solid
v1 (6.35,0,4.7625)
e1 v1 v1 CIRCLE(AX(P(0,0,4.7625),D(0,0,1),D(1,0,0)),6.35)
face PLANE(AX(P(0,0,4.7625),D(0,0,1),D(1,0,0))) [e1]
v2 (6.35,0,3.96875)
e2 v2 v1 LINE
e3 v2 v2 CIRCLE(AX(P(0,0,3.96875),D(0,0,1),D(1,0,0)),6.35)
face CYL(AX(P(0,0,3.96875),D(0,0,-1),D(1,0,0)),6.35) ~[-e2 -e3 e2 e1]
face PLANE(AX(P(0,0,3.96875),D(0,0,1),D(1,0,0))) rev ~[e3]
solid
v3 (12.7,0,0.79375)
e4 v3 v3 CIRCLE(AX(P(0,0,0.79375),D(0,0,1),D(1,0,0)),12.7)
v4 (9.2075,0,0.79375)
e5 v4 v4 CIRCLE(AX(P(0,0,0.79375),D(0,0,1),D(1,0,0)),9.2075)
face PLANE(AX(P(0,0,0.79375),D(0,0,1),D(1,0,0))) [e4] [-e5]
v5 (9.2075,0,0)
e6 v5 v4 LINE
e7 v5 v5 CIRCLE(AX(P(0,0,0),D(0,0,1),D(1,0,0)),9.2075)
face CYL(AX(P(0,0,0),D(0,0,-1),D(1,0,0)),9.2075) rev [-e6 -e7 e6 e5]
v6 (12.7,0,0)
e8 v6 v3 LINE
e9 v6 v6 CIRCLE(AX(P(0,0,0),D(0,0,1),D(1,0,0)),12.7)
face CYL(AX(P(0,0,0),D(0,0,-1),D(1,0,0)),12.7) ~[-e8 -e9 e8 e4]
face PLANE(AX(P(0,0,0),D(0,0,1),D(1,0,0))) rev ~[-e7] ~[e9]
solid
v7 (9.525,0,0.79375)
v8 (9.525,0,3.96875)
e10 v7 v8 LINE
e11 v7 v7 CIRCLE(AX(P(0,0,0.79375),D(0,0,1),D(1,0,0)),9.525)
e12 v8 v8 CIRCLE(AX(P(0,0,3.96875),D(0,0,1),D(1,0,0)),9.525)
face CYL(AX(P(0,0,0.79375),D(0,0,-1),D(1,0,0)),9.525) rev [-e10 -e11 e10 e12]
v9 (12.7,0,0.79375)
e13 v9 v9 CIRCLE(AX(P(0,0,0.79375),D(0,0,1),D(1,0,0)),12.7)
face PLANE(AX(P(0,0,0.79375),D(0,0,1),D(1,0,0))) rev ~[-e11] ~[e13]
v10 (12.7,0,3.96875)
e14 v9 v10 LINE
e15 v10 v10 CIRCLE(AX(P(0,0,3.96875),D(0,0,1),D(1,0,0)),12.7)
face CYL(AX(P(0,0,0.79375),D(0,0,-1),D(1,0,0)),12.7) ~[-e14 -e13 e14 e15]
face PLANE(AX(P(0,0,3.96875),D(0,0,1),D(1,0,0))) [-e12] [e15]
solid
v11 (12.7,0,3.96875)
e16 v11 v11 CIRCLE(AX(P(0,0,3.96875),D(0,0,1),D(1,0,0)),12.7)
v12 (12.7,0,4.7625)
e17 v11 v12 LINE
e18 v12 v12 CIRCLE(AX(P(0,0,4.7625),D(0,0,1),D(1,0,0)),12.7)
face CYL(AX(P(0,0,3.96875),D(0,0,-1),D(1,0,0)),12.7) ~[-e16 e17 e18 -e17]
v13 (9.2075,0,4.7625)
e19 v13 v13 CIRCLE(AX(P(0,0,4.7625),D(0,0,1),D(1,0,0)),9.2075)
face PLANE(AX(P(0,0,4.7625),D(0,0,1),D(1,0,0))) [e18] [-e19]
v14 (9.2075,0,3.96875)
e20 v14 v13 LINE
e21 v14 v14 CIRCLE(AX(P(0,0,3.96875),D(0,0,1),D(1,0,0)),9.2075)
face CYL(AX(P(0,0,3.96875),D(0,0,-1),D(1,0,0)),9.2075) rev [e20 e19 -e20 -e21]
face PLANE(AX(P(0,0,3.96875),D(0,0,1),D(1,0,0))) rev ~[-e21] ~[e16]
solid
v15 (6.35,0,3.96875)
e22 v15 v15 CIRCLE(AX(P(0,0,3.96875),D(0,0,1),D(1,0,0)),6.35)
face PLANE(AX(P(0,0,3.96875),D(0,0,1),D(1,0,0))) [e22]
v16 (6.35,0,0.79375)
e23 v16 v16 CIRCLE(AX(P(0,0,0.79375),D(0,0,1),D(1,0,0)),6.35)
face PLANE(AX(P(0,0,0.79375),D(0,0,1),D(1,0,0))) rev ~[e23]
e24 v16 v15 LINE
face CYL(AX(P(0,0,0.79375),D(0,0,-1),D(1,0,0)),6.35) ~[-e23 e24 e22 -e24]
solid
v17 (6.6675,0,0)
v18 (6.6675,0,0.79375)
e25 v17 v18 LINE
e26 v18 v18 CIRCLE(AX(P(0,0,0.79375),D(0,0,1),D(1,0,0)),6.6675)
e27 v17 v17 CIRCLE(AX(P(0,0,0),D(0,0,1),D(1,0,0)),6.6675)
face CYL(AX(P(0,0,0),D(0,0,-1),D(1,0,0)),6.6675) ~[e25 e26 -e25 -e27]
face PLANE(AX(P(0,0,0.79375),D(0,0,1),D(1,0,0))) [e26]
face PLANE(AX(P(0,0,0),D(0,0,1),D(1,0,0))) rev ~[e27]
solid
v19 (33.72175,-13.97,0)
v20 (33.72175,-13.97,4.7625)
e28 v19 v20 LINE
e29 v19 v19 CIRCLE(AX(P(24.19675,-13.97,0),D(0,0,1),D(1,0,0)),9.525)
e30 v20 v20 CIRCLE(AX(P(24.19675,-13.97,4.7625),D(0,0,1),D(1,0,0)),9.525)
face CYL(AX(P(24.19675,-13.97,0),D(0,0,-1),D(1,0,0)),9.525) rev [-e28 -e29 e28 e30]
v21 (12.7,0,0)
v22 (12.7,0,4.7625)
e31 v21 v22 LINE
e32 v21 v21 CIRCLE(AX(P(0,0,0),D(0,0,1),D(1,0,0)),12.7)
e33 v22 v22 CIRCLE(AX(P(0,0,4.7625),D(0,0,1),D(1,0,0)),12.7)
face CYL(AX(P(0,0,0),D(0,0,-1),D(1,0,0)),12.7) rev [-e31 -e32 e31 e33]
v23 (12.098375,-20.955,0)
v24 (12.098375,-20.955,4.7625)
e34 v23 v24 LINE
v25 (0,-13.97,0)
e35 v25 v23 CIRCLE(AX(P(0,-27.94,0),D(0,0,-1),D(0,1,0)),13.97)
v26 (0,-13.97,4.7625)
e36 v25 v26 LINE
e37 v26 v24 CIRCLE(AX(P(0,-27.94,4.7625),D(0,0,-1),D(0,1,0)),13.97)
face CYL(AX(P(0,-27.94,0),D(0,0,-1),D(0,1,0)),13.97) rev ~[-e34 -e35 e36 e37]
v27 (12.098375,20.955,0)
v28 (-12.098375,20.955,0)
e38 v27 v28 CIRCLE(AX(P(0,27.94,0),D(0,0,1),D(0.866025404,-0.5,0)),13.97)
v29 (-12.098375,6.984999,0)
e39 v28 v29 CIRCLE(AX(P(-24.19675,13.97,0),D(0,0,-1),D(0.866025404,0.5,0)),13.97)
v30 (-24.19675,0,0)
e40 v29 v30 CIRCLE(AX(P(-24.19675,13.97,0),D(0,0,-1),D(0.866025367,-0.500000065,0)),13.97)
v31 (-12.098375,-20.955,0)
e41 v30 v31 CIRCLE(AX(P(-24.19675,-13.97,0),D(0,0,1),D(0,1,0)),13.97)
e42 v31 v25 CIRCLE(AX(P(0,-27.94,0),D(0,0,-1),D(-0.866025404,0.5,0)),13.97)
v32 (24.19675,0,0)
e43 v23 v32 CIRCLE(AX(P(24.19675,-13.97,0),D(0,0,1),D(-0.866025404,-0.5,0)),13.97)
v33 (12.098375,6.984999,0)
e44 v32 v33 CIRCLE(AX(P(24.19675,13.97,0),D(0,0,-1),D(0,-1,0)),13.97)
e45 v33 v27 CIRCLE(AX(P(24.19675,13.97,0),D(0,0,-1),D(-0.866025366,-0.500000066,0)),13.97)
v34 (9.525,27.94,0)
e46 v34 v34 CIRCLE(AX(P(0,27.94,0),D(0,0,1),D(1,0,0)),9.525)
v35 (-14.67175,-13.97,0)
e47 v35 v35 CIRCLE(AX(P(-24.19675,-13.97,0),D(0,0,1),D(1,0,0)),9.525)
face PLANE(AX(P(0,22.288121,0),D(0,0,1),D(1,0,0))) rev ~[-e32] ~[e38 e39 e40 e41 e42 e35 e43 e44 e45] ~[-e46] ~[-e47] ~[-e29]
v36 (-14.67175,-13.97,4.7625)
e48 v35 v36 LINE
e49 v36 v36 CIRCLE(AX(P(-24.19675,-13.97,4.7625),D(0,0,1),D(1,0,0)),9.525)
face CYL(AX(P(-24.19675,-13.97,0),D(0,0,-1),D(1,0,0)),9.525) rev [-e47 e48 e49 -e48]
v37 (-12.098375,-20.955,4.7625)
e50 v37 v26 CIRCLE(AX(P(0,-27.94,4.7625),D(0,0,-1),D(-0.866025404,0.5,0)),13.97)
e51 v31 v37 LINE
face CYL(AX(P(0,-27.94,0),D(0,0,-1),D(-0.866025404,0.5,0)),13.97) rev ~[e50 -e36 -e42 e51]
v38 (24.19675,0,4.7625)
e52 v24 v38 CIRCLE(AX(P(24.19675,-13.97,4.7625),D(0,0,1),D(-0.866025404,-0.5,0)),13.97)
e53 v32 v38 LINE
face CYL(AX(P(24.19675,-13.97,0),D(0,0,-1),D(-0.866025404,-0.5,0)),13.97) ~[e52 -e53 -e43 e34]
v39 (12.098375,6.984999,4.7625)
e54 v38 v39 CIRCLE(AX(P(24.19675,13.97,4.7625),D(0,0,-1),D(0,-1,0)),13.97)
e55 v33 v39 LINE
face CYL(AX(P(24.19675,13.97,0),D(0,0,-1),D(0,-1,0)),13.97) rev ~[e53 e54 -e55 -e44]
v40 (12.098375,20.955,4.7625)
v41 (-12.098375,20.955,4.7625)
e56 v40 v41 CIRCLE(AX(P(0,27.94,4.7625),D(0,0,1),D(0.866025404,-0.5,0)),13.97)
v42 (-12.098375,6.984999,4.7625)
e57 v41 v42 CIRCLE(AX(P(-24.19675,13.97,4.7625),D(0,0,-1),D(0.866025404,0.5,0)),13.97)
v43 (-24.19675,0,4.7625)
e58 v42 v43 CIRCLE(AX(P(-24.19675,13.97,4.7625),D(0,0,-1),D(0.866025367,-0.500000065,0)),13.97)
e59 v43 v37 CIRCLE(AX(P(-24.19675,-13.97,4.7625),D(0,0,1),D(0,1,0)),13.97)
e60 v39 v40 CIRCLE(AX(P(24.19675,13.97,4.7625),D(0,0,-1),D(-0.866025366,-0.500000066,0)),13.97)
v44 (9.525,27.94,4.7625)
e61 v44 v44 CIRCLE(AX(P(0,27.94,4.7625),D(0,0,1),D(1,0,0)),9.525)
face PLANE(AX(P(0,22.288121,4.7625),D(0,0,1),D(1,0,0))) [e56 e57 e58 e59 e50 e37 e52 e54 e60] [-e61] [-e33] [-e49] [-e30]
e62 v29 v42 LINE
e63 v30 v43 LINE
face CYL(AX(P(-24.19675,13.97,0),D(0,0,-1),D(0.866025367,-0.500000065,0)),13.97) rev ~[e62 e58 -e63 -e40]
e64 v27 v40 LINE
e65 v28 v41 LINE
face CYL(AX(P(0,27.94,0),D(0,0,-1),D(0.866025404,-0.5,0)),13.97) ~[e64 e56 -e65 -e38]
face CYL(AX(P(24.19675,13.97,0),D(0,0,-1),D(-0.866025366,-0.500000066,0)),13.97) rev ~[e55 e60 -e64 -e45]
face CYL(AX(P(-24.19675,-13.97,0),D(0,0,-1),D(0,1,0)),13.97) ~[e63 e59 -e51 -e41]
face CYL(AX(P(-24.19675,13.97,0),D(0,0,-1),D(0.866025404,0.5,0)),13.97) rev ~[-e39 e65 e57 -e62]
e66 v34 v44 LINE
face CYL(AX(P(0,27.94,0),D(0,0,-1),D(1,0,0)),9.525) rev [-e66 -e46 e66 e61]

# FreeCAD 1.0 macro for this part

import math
import FreeCAD as App
import Part
import Sketcher
from FreeCAD import Vector
Q = App.Units.Quantity

doc = App.newDocument("Part")
params = doc.addObject("Spreadsheet::Sheet", "Params")
for row, (alias, value) in enumerate([
    ("sketch1_diameter", "1 in"),
    ("sketch1_diameter2", "0.725 in"),
    ("pad1_length", "0.03125 in"),
    ("sketch2_diameter", "0.525 in"),
    ("pad2_length", "0.03125 in"),
    ("sketch3_diameter", "0.5 in"),
    ("pad3_length", "0.125 in"),
    ("sketch4_diameter", "1 in"),
    ("sketch4_diameter2", "0.75 in"),
    ("pad4_length", "0.125 in"),
    ("sketch5_diameter", "0.5 in"),
    ("pad5_length", "0.03125 in"),
    ("sketch6_diameter", "1 in"),
    ("sketch6_diameter2", "0.725 in"),
    ("pad6_length", "0.03125 in"),
    ("sketch7_diameter", "1 in"),
    ("sketch7_diameter2", "0.75 in"),
    ("sketch7_radius", "0.55 in"),
    ("pad7_length", "0.1875 in"),
], start=1):
    params.set(f"A{row}", alias)
    params.set(f"B{row}", "=" + value)
    params.setAlias(f"B{row}", alias)

body = doc.addObject("PartDesign::Body", "Body")

# Sketch on XY plane
sketch1 = body.newObject("Sketcher::SketchObject", "Sketch")
sketch1.AttachmentSupport = (doc.getObject("XY_Plane"), [""])
sketch1.MapMode = "FlatFace"
sketch1.addGeometry([
    Part.Circle(Vector(0, 0, 0), Vector(0, 0, 1), 13),
    Part.Circle(Vector(0, 0, 0), Vector(0, 0, 1), 9),
], False)
sketch1.addConstraint([
    Sketcher.Constraint("Coincident", 0, 3, -1, 1),
    Sketcher.Constraint("Coincident", 1, 3, -1, 1),
    Sketcher.Constraint("Diameter", 0, Q("1 in")),
    Sketcher.Constraint("Diameter", 1, Q("0.725 in")),
])
sketch1.setExpression("Constraints[2]", "Params.sketch1_diameter")
sketch1.setExpression("Constraints[3]", "Params.sketch1_diameter2")
pad1 = body.newObject("PartDesign::Pad", "Pad")
pad1.Profile = sketch1
pad1.setExpression("Length", "Params.pad1_length")
body2 = doc.addObject("PartDesign::Body", "Body001")

# Sketch on XY plane
sketch2 = body2.newObject("Sketcher::SketchObject", "Sketch001")
sketch2.AttachmentSupport = (doc.getObject("XY_Plane001"), [""])
sketch2.MapMode = "FlatFace"
sketch2.addGeometry(Part.Circle(Vector(0, 0, 0), Vector(0, 0, 1), 7), False)
sketch2.addConstraint([
    Sketcher.Constraint("Coincident", 0, 3, -1, 1),
    Sketcher.Constraint("Diameter", 0, Q("0.525 in")),
])
sketch2.setExpression("Constraints[1]", "Params.sketch2_diameter")
pad2 = body2.newObject("PartDesign::Pad", "Pad001")
pad2.Profile = sketch2
pad2.setExpression("Length", "Params.pad2_length")
body3 = doc.addObject("PartDesign::Body", "Body002")

# Sketch on XY plane
sketch3 = body3.newObject("Sketcher::SketchObject", "Sketch002")
sketch3.AttachmentSupport = (doc.getObject("XY_Plane002"), [""])
sketch3.MapMode = "FlatFace"
sketch3.AttachmentOffset = App.Placement(Vector(0, 0, 0.03125 * 25.4), App.Rotation())
sketch3.addGeometry(Part.Circle(Vector(0, 0, 0), Vector(0, 0, 1), 6), False)
sketch3.addConstraint([
    Sketcher.Constraint("Coincident", 0, 3, -1, 1),
    Sketcher.Constraint("Diameter", 0, Q("0.5 in")),
])
sketch3.setExpression("Constraints[1]", "Params.sketch3_diameter")
pad3 = body3.newObject("PartDesign::Pad", "Pad002")
pad3.Profile = sketch3
pad3.setExpression("Length", "Params.pad3_length")
body4 = doc.addObject("PartDesign::Body", "Body003")

# Sketch on XY plane
sketch4 = body4.newObject("Sketcher::SketchObject", "Sketch003")
sketch4.AttachmentSupport = (doc.getObject("XY_Plane003"), [""])
sketch4.MapMode = "FlatFace"
sketch4.AttachmentOffset = App.Placement(Vector(0, 0, 0.03125 * 25.4), App.Rotation())
sketch4.addGeometry([
    Part.Circle(Vector(0, 0, 0), Vector(0, 0, 1), 13),
    Part.Circle(Vector(0, 0, 0), Vector(0, 0, 1), 10),
], False)
sketch4.addConstraint([
    Sketcher.Constraint("Coincident", 0, 3, -1, 1),
    Sketcher.Constraint("Coincident", 1, 3, -1, 1),
    Sketcher.Constraint("Diameter", 0, Q("1 in")),
    Sketcher.Constraint("Diameter", 1, Q("0.75 in")),
])
sketch4.setExpression("Constraints[2]", "Params.sketch4_diameter")
sketch4.setExpression("Constraints[3]", "Params.sketch4_diameter2")
pad4 = body4.newObject("PartDesign::Pad", "Pad003")
pad4.Profile = sketch4
pad4.setExpression("Length", "Params.pad4_length")
body5 = doc.addObject("PartDesign::Body", "Body004")

# Sketch on XY plane
sketch5 = body5.newObject("Sketcher::SketchObject", "Sketch004")
sketch5.AttachmentSupport = (doc.getObject("XY_Plane004"), [""])
sketch5.MapMode = "FlatFace"
sketch5.AttachmentOffset = App.Placement(Vector(0, 0, 0.15625 * 25.4), App.Rotation())
sketch5.addGeometry(Part.Circle(Vector(0, 0, 0), Vector(0, 0, 1), 6), False)
sketch5.addConstraint([
    Sketcher.Constraint("Coincident", 0, 3, -1, 1),
    Sketcher.Constraint("Diameter", 0, Q("0.5 in")),
])
sketch5.setExpression("Constraints[1]", "Params.sketch5_diameter")
pad5 = body5.newObject("PartDesign::Pad", "Pad004")
pad5.Profile = sketch5
pad5.setExpression("Length", "Params.pad5_length")
body6 = doc.addObject("PartDesign::Body", "Body005")

# Sketch on XY plane
sketch6 = body6.newObject("Sketcher::SketchObject", "Sketch005")
sketch6.AttachmentSupport = (doc.getObject("XY_Plane005"), [""])
sketch6.MapMode = "FlatFace"
sketch6.AttachmentOffset = App.Placement(Vector(0, 0, 0.15625 * 25.4), App.Rotation())
sketch6.addGeometry([
    Part.Circle(Vector(0, 0, 0), Vector(0, 0, 1), 13),
    Part.Circle(Vector(0, 0, 0), Vector(0, 0, 1), 9),
], False)
sketch6.addConstraint([
    Sketcher.Constraint("Coincident", 0, 3, -1, 1),
    Sketcher.Constraint("Coincident", 1, 3, -1, 1),
    Sketcher.Constraint("Diameter", 0, Q("1 in")),
    Sketcher.Constraint("Diameter", 1, Q("0.725 in")),
])
sketch6.setExpression("Constraints[2]", "Params.sketch6_diameter")
sketch6.setExpression("Constraints[3]", "Params.sketch6_diameter2")
pad6 = body6.newObject("PartDesign::Pad", "Pad005")
pad6.Profile = sketch6
pad6.setExpression("Length", "Params.pad6_length")
body7 = doc.addObject("PartDesign::Body", "Body006")

# Sketch on XY plane
sketch7 = body7.newObject("Sketcher::SketchObject", "Sketch006")
sketch7.AttachmentSupport = (doc.getObject("XY_Plane006"), [""])
sketch7.MapMode = "FlatFace"
sketch7.addGeometry([
    Part.ArcOfCircle(Part.Circle(Vector(-24, 14, 0), Vector(0, 0, 1), 14), math.radians(-30), math.radians(30)),  # 0
    Part.ArcOfCircle(Part.Circle(Vector(-24, 14, 0), Vector(0, 0, 1), 14), math.radians(-90), math.radians(-30)),  # 1
    Part.ArcOfCircle(Part.Circle(Vector(-24, -14, 0), Vector(0, 0, 1), 14), math.radians(90), math.radians(330)),  # 2
    Part.ArcOfCircle(Part.Circle(Vector(0, -28, 0), Vector(0, 0, 1), 14), math.radians(90), math.radians(150)),  # 3
    Part.ArcOfCircle(Part.Circle(Vector(0, -28, 0), Vector(0, 0, 1), 14), math.radians(30), math.radians(90)),  # 4
    Part.ArcOfCircle(Part.Circle(Vector(24, -14, 0), Vector(0, 0, 1), 14), math.radians(-150), math.radians(90)),  # 5
    Part.ArcOfCircle(Part.Circle(Vector(24, 14, 0), Vector(0, 0, 1), 14), math.radians(-150), math.radians(-90)),  # 6
    Part.ArcOfCircle(Part.Circle(Vector(24, 14, 0), Vector(0, 0, 1), 14), math.radians(150), math.radians(210)),  # 7
    Part.ArcOfCircle(Part.Circle(Vector(0, 28, 0), Vector(0, 0, 1), 14), math.radians(-30), math.radians(210)),  # 8
    Part.Circle(Vector(-24, -14, 0), Vector(0, 0, 1), 10),  # 9
    Part.Circle(Vector(24, -14, 0), Vector(0, 0, 1), 10),  # 10
    Part.Circle(Vector(0, 0, 0), Vector(0, 0, 1), 13),  # 11
    Part.Circle(Vector(0, 28, 0), Vector(0, 0, 1), 10),  # 12
], False)
sketch7.addConstraint([
    Sketcher.Constraint("Tangent", 0, 1, 1, 2),
    Sketcher.Constraint("Tangent", 1, 1, 2, 1),
    Sketcher.Constraint("Tangent", 2, 2, 3, 2),
    Sketcher.Constraint("Tangent", 3, 1, 4, 2),
    Sketcher.Constraint("Tangent", 4, 1, 5, 1),
    Sketcher.Constraint("Tangent", 5, 2, 6, 2),
    Sketcher.Constraint("Tangent", 6, 1, 7, 2),
    Sketcher.Constraint("Tangent", 7, 1, 8, 1),
    Sketcher.Constraint("Tangent", 8, 2, 0, 2),
    Sketcher.Constraint("Coincident", 11, 3, -1, 1),
    Sketcher.Constraint("Coincident", 9, 3, 2, 3),
    Sketcher.Constraint("Coincident", 10, 3, 5, 3),
    Sketcher.Constraint("Coincident", 12, 3, 8, 3),
    Sketcher.Constraint("Equal", 0, 1),
    Sketcher.Constraint("Equal", 1, 2),
    Sketcher.Constraint("Equal", 2, 3),
    Sketcher.Constraint("Equal", 3, 4),
    Sketcher.Constraint("Equal", 4, 5),
    Sketcher.Constraint("Equal", 5, 6),
    Sketcher.Constraint("Equal", 6, 7),
    Sketcher.Constraint("Equal", 7, 8),
    Sketcher.Constraint("Equal", 9, 10),
    Sketcher.Constraint("Equal", 10, 12),
    Sketcher.Constraint("Symmetric", 0, 3, 5, 3, -1, 1),
    Sketcher.Constraint("Symmetric", 2, 3, 5, 3, -2),
    Sketcher.Constraint("Symmetric", 0, 1, 6, 1, -2),
    Sketcher.Constraint("PointOnObject", 3, 1, -2),
    Sketcher.Constraint("Horizontal", 10, 3, 3, 1),
    Sketcher.Constraint("Vertical", 0, 1, 2, 2),
    Sketcher.Constraint("Diameter", 11, Q("1 in")),
    Sketcher.Constraint("Diameter", 9, Q("0.75 in")),
    Sketcher.Constraint("Radius", 0, Q("0.55 in")),
])
sketch7.setExpression("Constraints[29]", "Params.sketch7_diameter")
sketch7.setExpression("Constraints[30]", "Params.sketch7_diameter2")
sketch7.setExpression("Constraints[31]", "Params.sketch7_radius")
pad7 = body7.newObject("PartDesign::Pad", "Pad006")
pad7.Profile = sketch7
pad7.setExpression("Length", "Params.pad7_length")

doc.recompute()
